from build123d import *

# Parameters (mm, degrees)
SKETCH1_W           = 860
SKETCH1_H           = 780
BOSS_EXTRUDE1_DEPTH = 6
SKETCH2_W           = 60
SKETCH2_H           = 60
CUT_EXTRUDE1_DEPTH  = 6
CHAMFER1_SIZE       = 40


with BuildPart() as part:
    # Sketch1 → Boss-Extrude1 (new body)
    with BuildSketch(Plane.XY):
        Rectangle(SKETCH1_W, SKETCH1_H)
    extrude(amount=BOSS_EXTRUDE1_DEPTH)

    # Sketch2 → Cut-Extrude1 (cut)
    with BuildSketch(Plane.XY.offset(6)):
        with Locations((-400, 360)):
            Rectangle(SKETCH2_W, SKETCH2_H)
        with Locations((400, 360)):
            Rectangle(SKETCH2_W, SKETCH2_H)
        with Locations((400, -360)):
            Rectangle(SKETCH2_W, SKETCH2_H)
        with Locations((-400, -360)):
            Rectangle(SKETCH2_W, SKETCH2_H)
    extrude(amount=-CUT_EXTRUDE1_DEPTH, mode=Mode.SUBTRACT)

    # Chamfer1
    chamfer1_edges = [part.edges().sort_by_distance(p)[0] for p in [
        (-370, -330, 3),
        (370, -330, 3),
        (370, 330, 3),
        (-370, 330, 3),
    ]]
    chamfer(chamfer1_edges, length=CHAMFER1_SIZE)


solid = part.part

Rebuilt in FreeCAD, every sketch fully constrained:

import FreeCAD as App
import Part
import Sketcher


def edges_at(feature, points):
    """Names of the edges that pass closest to the given points."""
    edges = feature.Shape.Edges
    near = lambda p: min(range(len(edges)), key=lambda i: edges[i].distToShape(Part.Vertex(*p))[0])
    return sorted({f"Edge{near(p) + 1}" for p in points})


def add_polygon(sketch, points):
    """Adds a closed chain of lines whose ends are joined by coincident constraints."""
    first, n = sketch.GeometryCount, len(points)
    for a, b in zip(points, points[1:] + points[:1]):
        sketch.addGeometry(Part.LineSegment(App.Vector(*a, 0), App.Vector(*b, 0)), False)
    for i in range(n):
        sketch.addConstraint(Sketcher.Constraint("Coincident", first + i, 2, first + (i + 1) % n, 1))

doc = App.newDocument("Part")
body = doc.addObject("PartDesign::Body", "Body")

# Sketch on XY plane
sketch1 = doc.addObject("Sketcher::SketchObject", "Sketch")
body.addObject(sketch1)
sketch1.AttachmentSupport = (doc.XY_Plane, [""])
sketch1.MapMode = "FlatFace"
add_polygon(sketch1, [(-430, 390), (-430, -390), (430, -390), (430, 390)])  # lines 0-3
sketch1.addConstraint(Sketcher.Constraint("Vertical", 0))
sketch1.addConstraint(Sketcher.Constraint("Horizontal", 1))
sketch1.addConstraint(Sketcher.Constraint("Vertical", 2))
sketch1.addConstraint(Sketcher.Constraint("Horizontal", 3))
sketch1.addConstraint(Sketcher.Constraint("Symmetric", 0, 2, 2, 2, -1, 1))
sketch1.addConstraint(Sketcher.Constraint("DistanceX", 1, 1, 1, 2, 860.0))
sketch1.addConstraint(Sketcher.Constraint("DistanceY", 0, 2, 0, 1, 780.0))
pad1 = doc.addObject("PartDesign::Pad", "Pad")
body.addObject(pad1)
pad1.Profile = sketch1
pad1.Length = 6

# Sketch on XY plane
sketch2 = doc.addObject("Sketcher::SketchObject", "Sketch001")
body.addObject(sketch2)
sketch2.AttachmentSupport = (doc.XY_Plane, [""])
sketch2.MapMode = "FlatFace"
sketch2.AttachmentOffset = App.Placement(App.Vector(0, 0, 6), App.Rotation())
add_polygon(sketch2, [(-430, 390), (-430, 330), (-370, 330), (-370, 390)])  # lines 0-3
add_polygon(sketch2, [(370, 390), (370, 330), (430, 330), (430, 390)])  # lines 4-7
add_polygon(sketch2, [(370, -330), (370, -390), (430, -390), (430, -330)])  # lines 8-11
add_polygon(sketch2, [(-430, -330), (-430, -390), (-370, -390), (-370, -330)])  # lines 12-15
sketch2.addConstraint(Sketcher.Constraint("Vertical", 0))
sketch2.addConstraint(Sketcher.Constraint("Horizontal", 1))
sketch2.addConstraint(Sketcher.Constraint("Vertical", 2))
sketch2.addConstraint(Sketcher.Constraint("Horizontal", 3))
sketch2.addConstraint(Sketcher.Constraint("Vertical", 4))
sketch2.addConstraint(Sketcher.Constraint("Horizontal", 5))
sketch2.addConstraint(Sketcher.Constraint("Vertical", 6))
sketch2.addConstraint(Sketcher.Constraint("Horizontal", 7))
sketch2.addConstraint(Sketcher.Constraint("Vertical", 8))
sketch2.addConstraint(Sketcher.Constraint("Horizontal", 9))
sketch2.addConstraint(Sketcher.Constraint("Vertical", 10))
sketch2.addConstraint(Sketcher.Constraint("Horizontal", 11))
sketch2.addConstraint(Sketcher.Constraint("Vertical", 12))
sketch2.addConstraint(Sketcher.Constraint("Horizontal", 13))
sketch2.addConstraint(Sketcher.Constraint("Vertical", 14))
sketch2.addConstraint(Sketcher.Constraint("Horizontal", 15))
sketch2.addConstraint(Sketcher.Constraint("Symmetric", 2, 2, 8, 2, -1, 1))
sketch2.addConstraint(Sketcher.Constraint("Symmetric", 0, 2, 10, 2, -1, 1))
sketch2.addConstraint(Sketcher.Constraint("Symmetric", 6, 2, 12, 2, -1, 1))
sketch2.addConstraint(Sketcher.Constraint("Symmetric", 4, 2, 14, 2, -1, 1))
sketch2.addConstraint(Sketcher.Constraint("Symmetric", 1, 2, 4, 2, -2))
sketch2.addConstraint(Sketcher.Constraint("Symmetric", 3, 2, 6, 2, -2))
sketch2.addConstraint(Sketcher.Constraint("Equal", 15, 0))
sketch2.addConstraint(Sketcher.Constraint("DistanceX", 1, 1, 1, 2, 60.0))
sketch2.addConstraint(Sketcher.Constraint("DistanceX", 0, 2, -1, 1, 430.0))
sketch2.addConstraint(Sketcher.Constraint("DistanceY", -1, 1, 0, 2, 330.0))
pocket1 = doc.addObject("PartDesign::Pocket", "Pocket")
body.addObject(pocket1)
pocket1.Profile = sketch2
pocket1.Length = 6
doc.recompute()

chamfer = doc.addObject("PartDesign::Chamfer", "Chamfer")
body.addObject(chamfer)
chamfer.Base = (pocket1, edges_at(pocket1, [
    (-370, -330, 3),
    (370, -330, 3),
    (370, 330, 3),
    (-370, 330, 3),
]))
chamfer.Size = 40

doc.recompute()
